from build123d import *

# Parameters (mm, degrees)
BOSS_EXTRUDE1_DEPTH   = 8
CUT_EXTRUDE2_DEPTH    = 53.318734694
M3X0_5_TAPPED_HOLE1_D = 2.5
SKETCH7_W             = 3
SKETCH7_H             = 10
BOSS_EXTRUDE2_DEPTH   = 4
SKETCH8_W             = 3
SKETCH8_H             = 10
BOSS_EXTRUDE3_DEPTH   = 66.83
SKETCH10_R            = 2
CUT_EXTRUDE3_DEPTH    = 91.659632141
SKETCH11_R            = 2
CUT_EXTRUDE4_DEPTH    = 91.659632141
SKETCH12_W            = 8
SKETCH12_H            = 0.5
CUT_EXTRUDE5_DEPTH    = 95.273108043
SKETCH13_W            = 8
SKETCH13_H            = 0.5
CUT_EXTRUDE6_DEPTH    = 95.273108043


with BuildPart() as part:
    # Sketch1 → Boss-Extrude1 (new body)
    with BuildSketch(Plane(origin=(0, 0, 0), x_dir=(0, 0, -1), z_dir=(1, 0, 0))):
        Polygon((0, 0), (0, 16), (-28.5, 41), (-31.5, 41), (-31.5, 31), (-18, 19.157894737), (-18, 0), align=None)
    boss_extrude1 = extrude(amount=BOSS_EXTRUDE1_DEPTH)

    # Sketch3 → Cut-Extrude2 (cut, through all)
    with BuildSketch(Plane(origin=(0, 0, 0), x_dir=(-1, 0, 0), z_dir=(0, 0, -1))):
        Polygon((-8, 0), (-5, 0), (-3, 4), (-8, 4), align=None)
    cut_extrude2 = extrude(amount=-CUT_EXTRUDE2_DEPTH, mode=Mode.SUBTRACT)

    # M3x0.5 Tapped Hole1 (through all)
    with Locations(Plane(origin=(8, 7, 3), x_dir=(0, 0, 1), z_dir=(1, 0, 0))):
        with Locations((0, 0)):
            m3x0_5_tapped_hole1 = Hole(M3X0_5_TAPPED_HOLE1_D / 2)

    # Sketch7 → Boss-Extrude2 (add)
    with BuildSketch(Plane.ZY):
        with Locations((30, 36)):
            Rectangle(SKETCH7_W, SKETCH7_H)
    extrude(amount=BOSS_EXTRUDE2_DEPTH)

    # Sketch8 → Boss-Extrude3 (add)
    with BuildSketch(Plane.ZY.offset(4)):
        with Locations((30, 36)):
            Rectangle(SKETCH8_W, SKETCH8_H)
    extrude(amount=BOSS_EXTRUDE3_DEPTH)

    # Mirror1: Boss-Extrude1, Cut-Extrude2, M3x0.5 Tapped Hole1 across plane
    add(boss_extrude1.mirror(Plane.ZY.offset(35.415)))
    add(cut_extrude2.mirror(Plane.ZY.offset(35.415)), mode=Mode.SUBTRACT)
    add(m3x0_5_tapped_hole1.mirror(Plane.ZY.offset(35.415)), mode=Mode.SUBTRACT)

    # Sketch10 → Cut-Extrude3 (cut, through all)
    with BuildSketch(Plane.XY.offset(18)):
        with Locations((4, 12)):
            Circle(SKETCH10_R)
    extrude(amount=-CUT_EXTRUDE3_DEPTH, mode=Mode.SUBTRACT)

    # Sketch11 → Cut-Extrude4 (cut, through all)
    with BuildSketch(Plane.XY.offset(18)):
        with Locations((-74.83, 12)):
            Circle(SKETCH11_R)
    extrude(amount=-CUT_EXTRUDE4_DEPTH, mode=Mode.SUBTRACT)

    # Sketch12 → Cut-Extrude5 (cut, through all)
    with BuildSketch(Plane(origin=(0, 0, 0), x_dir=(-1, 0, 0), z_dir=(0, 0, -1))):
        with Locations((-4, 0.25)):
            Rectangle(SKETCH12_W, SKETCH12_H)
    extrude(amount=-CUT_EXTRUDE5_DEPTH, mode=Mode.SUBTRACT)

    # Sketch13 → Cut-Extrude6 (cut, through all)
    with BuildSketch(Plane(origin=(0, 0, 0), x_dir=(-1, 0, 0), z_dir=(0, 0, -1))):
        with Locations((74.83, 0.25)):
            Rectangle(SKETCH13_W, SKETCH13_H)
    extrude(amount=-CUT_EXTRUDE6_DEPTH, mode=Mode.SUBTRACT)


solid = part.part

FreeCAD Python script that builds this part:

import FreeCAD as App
import Part
import Sketcher
from FreeCAD import Vector


def add_polygon(sketch, points):
    """Adds a closed chain of lines whose ends are joined by coincident constraints."""
    first, n = sketch.GeometryCount, len(points)
    for a, b in zip(points, points[1:] + points[:1]):
        sketch.addGeometry(Part.LineSegment(App.Vector(*a, 0), App.Vector(*b, 0)), False)
    for i in range(n):
        sketch.addConstraint(Sketcher.Constraint("Coincident", first + i, 2, first + (i + 1) % n, 1))

doc = App.newDocument("Part")
body = doc.addObject("PartDesign::Body", "Body")

sketch1 = doc.addObject("Sketcher::SketchObject", "Sketch")
body.addObject(sketch1)
sketch1.AttachmentSupport = (doc.YZ_Plane, [""])
sketch1.MapMode = "FlatFace"
add_polygon(sketch1, [(0, 0), (16, 0), (41, 28.5), (41, 31.5), (31, 31.5), (19.2, 18), (0, 18)])
sketch1.addConstraint([
    Sketcher.Constraint("Horizontal", 0),
    Sketcher.Constraint("Vertical", 2),
    Sketcher.Constraint("Horizontal", 3),
    Sketcher.Constraint("Horizontal", 5),
    Sketcher.Constraint("Vertical", 6),
    Sketcher.Constraint("Coincident", 6, 2, -1, 1),
    Sketcher.Constraint("Parallel", 1, 4),
    Sketcher.Constraint("DistanceX", 0, 1, 0, 2, 16.0),
    Sketcher.Constraint("DistanceX", 3, 2, 3, 1, 10.0),
    Sketcher.Constraint("DistanceY", 2, 1, 2, 2, 3.0),
    Sketcher.Constraint("DistanceY", 6, 2, 6, 1, 18.0),
    Sketcher.Constraint("DistanceX", -1, 1, 1, 2, 41.0),
    Sketcher.Constraint("DistanceY", -1, 1, 1, 2, 28.5),
])
pad1 = doc.addObject("PartDesign::Pad", "Pad")
body.addObject(pad1)
pad1.Profile = sketch1
pad1.Length = 8

sketch2 = doc.addObject("Sketcher::SketchObject", "Sketch001")
body.addObject(sketch2)
sketch2.AttachmentSupport = (doc.XY_Plane, [""])
sketch2.MapMode = "FlatFace"
add_polygon(sketch2, [(8, 0), (5, 0), (3, 4), (8, 4)])
sketch2.addConstraint([
    Sketcher.Constraint("Horizontal", 0),
    Sketcher.Constraint("Horizontal", 2),
    Sketcher.Constraint("Vertical", 3),
    Sketcher.Constraint("PointOnObject", 0, 2, -1),
    Sketcher.Constraint("DistanceX", 0, 2, 0, 1, 3.0),
    Sketcher.Constraint("DistanceX", 2, 1, 2, 2, 5.0),
    Sketcher.Constraint("DistanceY", 3, 2, 3, 1, 4.0),
    Sketcher.Constraint("DistanceX", -1, 1, 0, 2, 5.0),
])
pocket1 = doc.addObject("PartDesign::Pocket", "Pocket")
body.addObject(pocket1)
pocket1.Profile = sketch2
pocket1.Type = "ThroughAll"
pocket1.Reversed = True

sketch3 = doc.addObject("Sketcher::SketchObject", "Sketch002")
body.addObject(sketch3)
sketch3.AttachmentSupport = (doc.YZ_Plane, [""])
sketch3.MapMode = "FlatFace"
sketch3.AttachmentOffset = App.Placement(Vector(0, 0, 8), App.Rotation())
sketch3.addGeometry(Part.Circle(Vector(7, 3, 0), Vector(0, 0, 1), 1.2), False)
sketch3.addConstraint([
    Sketcher.Constraint("Diameter", 0, 2.5),
    Sketcher.Constraint("DistanceX", -1, 1, 0, 3, 7.0),
    Sketcher.Constraint("DistanceY", -1, 1, 0, 3, 3.0),
])
doc.recompute()
hole = doc.addObject("PartDesign::Hole", "Hole")
body.addObject(hole)
hole.Profile = sketch3
hole.ThreadType = "None"
hole.Diameter = 2.5
hole.DepthType = "ThroughAll"

sketch4 = doc.addObject("Sketcher::SketchObject", "Sketch003")
body.addObject(sketch4)
sketch4.AttachmentSupport = (doc.YZ_Plane, [""])
sketch4.MapMode = "FlatFace"
add_polygon(sketch4, [(41, 28.5), (31, 28.5), (31, 31.5), (41, 31.5)])
sketch4.addConstraint([
    Sketcher.Constraint("Horizontal", 0),
    Sketcher.Constraint("Vertical", 1),
    Sketcher.Constraint("Horizontal", 2),
    Sketcher.Constraint("Vertical", 3),
    Sketcher.Constraint("DistanceX", 0, 2, 0, 1, 10.0),
    Sketcher.Constraint("DistanceY", 1, 1, 1, 2, 3.0),
    Sketcher.Constraint("DistanceX", -1, 1, 0, 2, 31.0),
    Sketcher.Constraint("DistanceY", -1, 1, 0, 2, 28.5),
])
pad2 = doc.addObject("PartDesign::Pad", "Pad001")
body.addObject(pad2)
pad2.Profile = sketch4
pad2.Length = 4
pad2.Reversed = True

sketch5 = doc.addObject("Sketcher::SketchObject", "Sketch004")
body.addObject(sketch5)
sketch5.AttachmentSupport = (doc.YZ_Plane, [""])
sketch5.MapMode = "FlatFace"
sketch5.AttachmentOffset = App.Placement(Vector(0, 0, -4), App.Rotation())
add_polygon(sketch5, [(41, 28.5), (31, 28.5), (31, 31.5), (41, 31.5)])
sketch5.addConstraint([
    Sketcher.Constraint("Horizontal", 0),
    Sketcher.Constraint("Vertical", 1),
    Sketcher.Constraint("Horizontal", 2),
    Sketcher.Constraint("Vertical", 3),
    Sketcher.Constraint("DistanceX", 0, 2, 0, 1, 10.0),
    Sketcher.Constraint("DistanceY", 1, 1, 1, 2, 3.0),
    Sketcher.Constraint("DistanceX", -1, 1, 0, 2, 31.0),
    Sketcher.Constraint("DistanceY", -1, 1, 0, 2, 28.5),
])
pad3 = doc.addObject("PartDesign::Pad", "Pad002")
body.addObject(pad3)
pad3.Profile = sketch5
pad3.Length = 66.83
pad3.Reversed = True
doc.recompute()

datumplane = doc.addObject("PartDesign::Plane", "DatumPlane")
body.addObject(datumplane)
datumplane.AttachmentSupport = (doc.YZ_Plane, [""])
datumplane.MapMode = "FlatFace"
datumplane.AttachmentOffset = App.Placement(Vector(0, 0, -35.415), App.Rotation())
mirrored = doc.addObject("PartDesign::Mirrored", "Mirrored")
body.addObject(mirrored)
mirrored.Originals = [pad1, pocket1, hole]
mirrored.MirrorPlane = (datumplane, [""])
body.Tip = mirrored

sketch6 = doc.addObject("Sketcher::SketchObject", "Sketch005")
body.addObject(sketch6)
sketch6.AttachmentSupport = (doc.XY_Plane, [""])
sketch6.MapMode = "FlatFace"
sketch6.AttachmentOffset = App.Placement(Vector(0, 0, 18), App.Rotation())
sketch6.addGeometry(Part.Circle(Vector(4, 12, 0), Vector(0, 0, 1), 2), False)
sketch6.addConstraint([
    Sketcher.Constraint("Diameter", 0, 4.0),
    Sketcher.Constraint("DistanceX", -1, 1, 0, 3, 4.0),
    Sketcher.Constraint("DistanceY", -1, 1, 0, 3, 12.0),
])
pocket2 = doc.addObject("PartDesign::Pocket", "Pocket001")
body.addObject(pocket2)
pocket2.Profile = sketch6
pocket2.Type = "ThroughAll"

sketch7 = doc.addObject("Sketcher::SketchObject", "Sketch006")
body.addObject(sketch7)
sketch7.AttachmentSupport = (doc.XY_Plane, [""])
sketch7.MapMode = "FlatFace"
sketch7.AttachmentOffset = App.Placement(Vector(0, 0, 18), App.Rotation())
sketch7.addGeometry(Part.Circle(Vector(-74.8, 12, 0), Vector(0, 0, 1), 2), False)
sketch7.addConstraint([
    Sketcher.Constraint("Diameter", 0, 4.0),
    Sketcher.Constraint("DistanceY", -1, 1, 0, 3, 12.0),
    Sketcher.Constraint("DistanceX", 0, 3, -1, 1, 74.83),
])
pocket3 = doc.addObject("PartDesign::Pocket", "Pocket002")
body.addObject(pocket3)
pocket3.Profile = sketch7
pocket3.Type = "ThroughAll"

sketch8 = doc.addObject("Sketcher::SketchObject", "Sketch007")
body.addObject(sketch8)
sketch8.AttachmentSupport = (doc.XY_Plane, [""])
sketch8.MapMode = "FlatFace"
add_polygon(sketch8, [(8, 0.5), (8, 0), (0, 0), (0, 0.5)])
sketch8.addConstraint([
    Sketcher.Constraint("Vertical", 0),
    Sketcher.Constraint("Horizontal", 1),
    Sketcher.Constraint("Vertical", 2),
    Sketcher.Constraint("Horizontal", 3),
    Sketcher.Constraint("Coincident", 1, 2, -1, 1),
    Sketcher.Constraint("DistanceX", 1, 2, 1, 1, 8.0),
    Sketcher.Constraint("DistanceY", 0, 2, 0, 1, 0.5),
])
pocket4 = doc.addObject("PartDesign::Pocket", "Pocket003")
body.addObject(pocket4)
pocket4.Profile = sketch8
pocket4.Type = "ThroughAll"
pocket4.Reversed = True

sketch9 = doc.addObject("Sketcher::SketchObject", "Sketch008")
body.addObject(sketch9)
sketch9.AttachmentSupport = (doc.XY_Plane, [""])
sketch9.MapMode = "FlatFace"
add_polygon(sketch9, [(-70.8, 0.5), (-70.8, 0), (-78.8, 0), (-78.8, 0.5)])
sketch9.addConstraint([
    Sketcher.Constraint("Vertical", 0),
    Sketcher.Constraint("Horizontal", 1),
    Sketcher.Constraint("Vertical", 2),
    Sketcher.Constraint("Horizontal", 3),
    Sketcher.Constraint("PointOnObject", 0, 2, -1),
    Sketcher.Constraint("DistanceX", 1, 2, 1, 1, 8.0),
    Sketcher.Constraint("DistanceY", 0, 2, 0, 1, 0.5),
    Sketcher.Constraint("DistanceX", 0, 2, -1, 1, 70.83),
])
pocket5 = doc.addObject("PartDesign::Pocket", "Pocket004")
body.addObject(pocket5)
pocket5.Profile = sketch9
pocket5.Type = "ThroughAll"
pocket5.Reversed = True

doc.recompute()
